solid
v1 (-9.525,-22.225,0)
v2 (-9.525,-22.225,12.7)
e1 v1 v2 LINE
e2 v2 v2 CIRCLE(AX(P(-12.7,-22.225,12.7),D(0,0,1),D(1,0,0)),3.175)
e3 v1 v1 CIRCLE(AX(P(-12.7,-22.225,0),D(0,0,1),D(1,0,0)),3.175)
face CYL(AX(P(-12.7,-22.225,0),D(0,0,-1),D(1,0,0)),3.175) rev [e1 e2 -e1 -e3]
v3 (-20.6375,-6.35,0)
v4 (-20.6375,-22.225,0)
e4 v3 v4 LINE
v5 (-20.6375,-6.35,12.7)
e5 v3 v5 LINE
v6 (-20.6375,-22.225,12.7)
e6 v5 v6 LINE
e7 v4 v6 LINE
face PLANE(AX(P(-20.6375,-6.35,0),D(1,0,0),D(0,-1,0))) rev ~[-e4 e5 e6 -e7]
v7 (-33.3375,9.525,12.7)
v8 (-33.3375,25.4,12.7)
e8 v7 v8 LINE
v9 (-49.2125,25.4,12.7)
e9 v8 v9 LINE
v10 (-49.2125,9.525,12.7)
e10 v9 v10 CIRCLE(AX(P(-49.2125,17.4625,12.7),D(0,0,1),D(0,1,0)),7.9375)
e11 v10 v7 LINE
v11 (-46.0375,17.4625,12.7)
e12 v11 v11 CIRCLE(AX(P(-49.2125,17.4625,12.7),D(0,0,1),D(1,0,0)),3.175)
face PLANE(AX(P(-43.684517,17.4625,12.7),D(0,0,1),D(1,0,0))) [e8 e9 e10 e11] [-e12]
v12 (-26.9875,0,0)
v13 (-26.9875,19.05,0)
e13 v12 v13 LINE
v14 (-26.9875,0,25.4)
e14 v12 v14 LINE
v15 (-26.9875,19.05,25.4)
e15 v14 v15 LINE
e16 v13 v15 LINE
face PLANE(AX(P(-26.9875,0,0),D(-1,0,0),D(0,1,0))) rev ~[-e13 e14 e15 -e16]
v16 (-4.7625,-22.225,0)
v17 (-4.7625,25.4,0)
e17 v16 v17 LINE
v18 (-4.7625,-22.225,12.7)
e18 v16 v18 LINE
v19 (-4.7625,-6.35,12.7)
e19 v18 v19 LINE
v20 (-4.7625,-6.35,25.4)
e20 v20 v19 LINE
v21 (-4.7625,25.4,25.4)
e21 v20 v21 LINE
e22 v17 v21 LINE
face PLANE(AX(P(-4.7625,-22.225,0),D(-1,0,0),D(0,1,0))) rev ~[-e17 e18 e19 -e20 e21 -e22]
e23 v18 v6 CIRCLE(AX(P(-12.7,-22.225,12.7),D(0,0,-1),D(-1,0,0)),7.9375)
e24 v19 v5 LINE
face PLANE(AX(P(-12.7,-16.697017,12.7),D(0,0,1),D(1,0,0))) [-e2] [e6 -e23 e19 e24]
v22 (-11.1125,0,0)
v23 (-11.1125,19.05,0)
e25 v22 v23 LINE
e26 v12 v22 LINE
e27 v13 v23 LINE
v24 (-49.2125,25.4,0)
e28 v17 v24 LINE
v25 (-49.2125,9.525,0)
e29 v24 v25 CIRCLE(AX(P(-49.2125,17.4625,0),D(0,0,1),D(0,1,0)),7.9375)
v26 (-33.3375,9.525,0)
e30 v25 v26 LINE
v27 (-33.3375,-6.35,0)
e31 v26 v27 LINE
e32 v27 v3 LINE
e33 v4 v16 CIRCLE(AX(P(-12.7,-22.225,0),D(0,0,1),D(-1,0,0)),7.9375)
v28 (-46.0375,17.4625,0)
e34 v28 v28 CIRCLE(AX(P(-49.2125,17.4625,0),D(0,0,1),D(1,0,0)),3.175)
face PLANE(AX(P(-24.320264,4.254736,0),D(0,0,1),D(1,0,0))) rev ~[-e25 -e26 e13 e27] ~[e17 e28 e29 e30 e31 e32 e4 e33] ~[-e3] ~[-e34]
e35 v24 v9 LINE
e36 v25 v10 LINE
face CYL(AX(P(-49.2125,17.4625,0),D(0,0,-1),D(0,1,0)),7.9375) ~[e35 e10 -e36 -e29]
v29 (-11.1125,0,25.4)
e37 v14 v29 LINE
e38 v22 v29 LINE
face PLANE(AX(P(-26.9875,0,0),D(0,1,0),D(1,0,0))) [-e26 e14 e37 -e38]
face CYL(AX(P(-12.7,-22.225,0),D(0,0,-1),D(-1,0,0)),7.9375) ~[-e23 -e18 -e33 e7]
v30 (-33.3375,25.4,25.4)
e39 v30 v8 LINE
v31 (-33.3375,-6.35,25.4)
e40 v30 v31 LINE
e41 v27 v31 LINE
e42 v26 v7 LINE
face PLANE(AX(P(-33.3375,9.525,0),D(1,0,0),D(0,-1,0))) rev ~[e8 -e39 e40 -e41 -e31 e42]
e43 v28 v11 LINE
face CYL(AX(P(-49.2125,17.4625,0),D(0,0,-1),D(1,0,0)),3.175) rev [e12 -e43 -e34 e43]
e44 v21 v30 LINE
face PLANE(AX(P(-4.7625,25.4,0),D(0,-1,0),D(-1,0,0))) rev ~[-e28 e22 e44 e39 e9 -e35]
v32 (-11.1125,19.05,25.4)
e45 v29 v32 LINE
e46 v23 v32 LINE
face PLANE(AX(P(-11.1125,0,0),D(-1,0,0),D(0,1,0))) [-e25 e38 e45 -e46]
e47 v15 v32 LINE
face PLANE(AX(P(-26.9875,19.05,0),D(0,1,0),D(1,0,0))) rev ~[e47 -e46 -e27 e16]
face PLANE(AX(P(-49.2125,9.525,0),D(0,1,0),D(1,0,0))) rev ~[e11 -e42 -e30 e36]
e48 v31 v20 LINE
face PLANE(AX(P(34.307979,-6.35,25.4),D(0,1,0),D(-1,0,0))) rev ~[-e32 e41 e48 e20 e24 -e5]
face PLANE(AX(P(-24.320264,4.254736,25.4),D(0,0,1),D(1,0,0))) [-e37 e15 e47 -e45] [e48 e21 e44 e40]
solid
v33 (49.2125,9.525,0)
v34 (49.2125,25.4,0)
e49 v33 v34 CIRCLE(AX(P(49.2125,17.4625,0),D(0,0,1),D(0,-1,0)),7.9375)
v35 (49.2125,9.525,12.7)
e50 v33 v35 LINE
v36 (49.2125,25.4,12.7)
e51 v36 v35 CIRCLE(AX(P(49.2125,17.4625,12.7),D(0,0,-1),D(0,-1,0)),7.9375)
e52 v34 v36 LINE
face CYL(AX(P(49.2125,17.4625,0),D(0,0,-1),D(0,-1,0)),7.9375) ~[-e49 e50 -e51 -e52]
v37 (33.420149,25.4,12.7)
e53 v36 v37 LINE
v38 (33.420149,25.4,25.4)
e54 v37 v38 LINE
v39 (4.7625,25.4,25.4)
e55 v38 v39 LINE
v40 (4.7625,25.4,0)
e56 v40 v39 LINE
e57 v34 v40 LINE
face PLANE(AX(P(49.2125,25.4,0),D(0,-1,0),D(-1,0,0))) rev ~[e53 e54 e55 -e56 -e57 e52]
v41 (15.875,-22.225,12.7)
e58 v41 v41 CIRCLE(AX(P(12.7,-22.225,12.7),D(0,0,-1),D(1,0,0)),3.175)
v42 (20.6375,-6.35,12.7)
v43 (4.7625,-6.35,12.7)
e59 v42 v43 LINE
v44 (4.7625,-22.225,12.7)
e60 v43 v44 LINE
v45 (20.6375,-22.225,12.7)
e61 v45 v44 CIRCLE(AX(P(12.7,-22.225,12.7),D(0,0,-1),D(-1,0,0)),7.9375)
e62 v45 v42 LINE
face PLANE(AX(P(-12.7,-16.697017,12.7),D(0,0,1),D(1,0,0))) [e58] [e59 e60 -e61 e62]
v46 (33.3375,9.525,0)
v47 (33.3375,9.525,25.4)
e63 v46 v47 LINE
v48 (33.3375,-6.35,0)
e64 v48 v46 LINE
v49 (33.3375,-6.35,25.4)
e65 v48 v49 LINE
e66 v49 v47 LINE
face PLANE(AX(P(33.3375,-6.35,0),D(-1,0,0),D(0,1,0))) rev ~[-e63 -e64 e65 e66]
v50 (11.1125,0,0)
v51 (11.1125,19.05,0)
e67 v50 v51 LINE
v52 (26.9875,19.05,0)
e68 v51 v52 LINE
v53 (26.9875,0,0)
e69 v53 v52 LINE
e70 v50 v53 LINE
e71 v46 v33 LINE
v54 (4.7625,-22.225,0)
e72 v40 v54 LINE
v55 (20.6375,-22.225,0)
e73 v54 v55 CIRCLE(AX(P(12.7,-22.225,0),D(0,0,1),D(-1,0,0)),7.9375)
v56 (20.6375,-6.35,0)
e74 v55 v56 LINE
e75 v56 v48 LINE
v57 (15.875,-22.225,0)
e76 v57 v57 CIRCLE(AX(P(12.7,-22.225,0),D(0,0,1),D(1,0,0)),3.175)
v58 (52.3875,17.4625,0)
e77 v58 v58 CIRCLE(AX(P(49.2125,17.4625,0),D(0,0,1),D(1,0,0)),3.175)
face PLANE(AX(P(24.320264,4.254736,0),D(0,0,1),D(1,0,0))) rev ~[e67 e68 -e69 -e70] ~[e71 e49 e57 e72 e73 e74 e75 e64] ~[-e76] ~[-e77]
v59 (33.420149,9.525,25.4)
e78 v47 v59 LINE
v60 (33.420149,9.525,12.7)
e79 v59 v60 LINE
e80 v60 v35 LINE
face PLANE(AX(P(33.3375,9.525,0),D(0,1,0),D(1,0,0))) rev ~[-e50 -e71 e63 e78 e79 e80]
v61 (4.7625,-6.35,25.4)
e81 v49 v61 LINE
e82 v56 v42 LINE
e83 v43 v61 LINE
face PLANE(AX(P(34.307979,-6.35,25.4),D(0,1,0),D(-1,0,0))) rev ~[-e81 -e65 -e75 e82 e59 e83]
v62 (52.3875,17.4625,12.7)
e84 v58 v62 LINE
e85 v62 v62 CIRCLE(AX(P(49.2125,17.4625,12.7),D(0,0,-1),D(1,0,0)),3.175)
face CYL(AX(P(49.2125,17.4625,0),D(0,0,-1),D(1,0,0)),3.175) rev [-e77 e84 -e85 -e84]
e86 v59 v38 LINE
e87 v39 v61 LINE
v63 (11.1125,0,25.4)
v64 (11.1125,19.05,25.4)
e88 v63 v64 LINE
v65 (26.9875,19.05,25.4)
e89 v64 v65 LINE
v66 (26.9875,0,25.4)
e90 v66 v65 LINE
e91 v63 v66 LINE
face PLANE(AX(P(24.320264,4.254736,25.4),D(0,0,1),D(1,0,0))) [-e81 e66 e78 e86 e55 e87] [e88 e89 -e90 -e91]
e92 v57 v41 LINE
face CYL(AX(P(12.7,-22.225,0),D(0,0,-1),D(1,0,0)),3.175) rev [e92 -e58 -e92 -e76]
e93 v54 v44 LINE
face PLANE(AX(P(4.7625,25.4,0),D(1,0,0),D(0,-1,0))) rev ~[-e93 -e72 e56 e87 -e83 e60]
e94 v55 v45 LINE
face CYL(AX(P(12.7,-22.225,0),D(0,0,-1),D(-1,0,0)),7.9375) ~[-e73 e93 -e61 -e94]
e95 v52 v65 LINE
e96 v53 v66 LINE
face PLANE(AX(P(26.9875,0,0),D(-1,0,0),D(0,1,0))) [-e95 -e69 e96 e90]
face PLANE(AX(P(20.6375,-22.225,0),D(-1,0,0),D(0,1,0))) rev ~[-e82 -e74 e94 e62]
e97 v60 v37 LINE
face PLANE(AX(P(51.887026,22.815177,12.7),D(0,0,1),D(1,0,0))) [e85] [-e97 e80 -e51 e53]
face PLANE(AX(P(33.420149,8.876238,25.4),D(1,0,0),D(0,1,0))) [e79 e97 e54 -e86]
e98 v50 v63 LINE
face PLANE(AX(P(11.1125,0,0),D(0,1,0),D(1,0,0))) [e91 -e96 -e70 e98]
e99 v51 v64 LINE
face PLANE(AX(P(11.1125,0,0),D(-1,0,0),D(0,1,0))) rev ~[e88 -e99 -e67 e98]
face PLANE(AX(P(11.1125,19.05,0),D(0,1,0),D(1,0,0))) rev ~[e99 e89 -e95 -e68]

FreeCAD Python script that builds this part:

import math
import FreeCAD as App
import Part
import Sketcher

V = App.Vector
Q = App.Units.Quantity

doc = App.newDocument("Part")
body = doc.addObject("PartDesign::Body", "Body")

# Sketch on XY plane
sketch1 = body.newObject("Sketcher::SketchObject", "Sketch")
sketch1.AttachmentSupport = (doc.getObject("XY_Plane"), [""])
sketch1.MapMode = "FlatFace"
sketch1.addGeometry([
    Part.LineSegment(V(-4.8, -22.2, 0), V(-4.8, 25.4, 0)),  # 0
    Part.LineSegment(V(-4.8, 25.4, 0), V(-49.2, 25.4, 0)),  # 1
    Part.ArcOfCircle(Part.Circle(V(-49.2, 17.5, 0), V(0, 0, 1), 7.9), math.radians(90), math.radians(270)),  # 2
    Part.LineSegment(V(-49.2, 9.5, 0), V(-33.3, 9.5, 0)),  # 3
    Part.LineSegment(V(-33.3, 9.5, 0), V(-33.3, -6.3, 0)),  # 4
    Part.LineSegment(V(-33.3, -6.3, 0), V(-20.6, -6.3, 0)),  # 5
    Part.LineSegment(V(-20.6, -6.3, 0), V(-20.6, -22.2, 0)),  # 6
    Part.ArcOfCircle(Part.Circle(V(-12.7, -22.2, 0), V(0, 0, 1), 7.9), math.radians(180), math.radians(360)),  # 7
    Part.Circle(V(-12.7, -22.2, 0), V(0, 0, 1), 3.2),  # 8
    Part.Circle(V(-49.2, 17.5, 0), V(0, 0, 1), 3.2),  # 9
    Part.LineSegment(V(-11.1, 0, 0), V(-27, 0, 0)),  # 10
    Part.LineSegment(V(-27, 0, 0), V(-27, 19.1, 0)),  # 11
    Part.LineSegment(V(-27, 19.1, 0), V(-11.1, 19.1, 0)),  # 12
    Part.LineSegment(V(-11.1, 19.1, 0), V(-11.1, 0, 0)),  # 13
], False)
sketch1.addConstraint([
    Sketcher.Constraint("Coincident", 0, 2, 1, 1),
    Sketcher.Constraint("Tangent", 1, 2, 2, 1),
    Sketcher.Constraint("Tangent", 2, 2, 3, 1),
    Sketcher.Constraint("Coincident", 3, 2, 4, 1),
    Sketcher.Constraint("Coincident", 4, 2, 5, 1),
    Sketcher.Constraint("Coincident", 5, 2, 6, 1),
    Sketcher.Constraint("Tangent", 6, 2, 7, 1),
    Sketcher.Constraint("Tangent", 7, 2, 0, 1),
    Sketcher.Constraint("Coincident", 10, 2, 11, 1),
    Sketcher.Constraint("Coincident", 11, 2, 12, 1),
    Sketcher.Constraint("Coincident", 12, 2, 13, 1),
    Sketcher.Constraint("Coincident", 13, 2, 10, 1),
    Sketcher.Constraint("Vertical", 0),
    Sketcher.Constraint("Horizontal", 1),
    Sketcher.Constraint("Horizontal", 3),
    Sketcher.Constraint("Vertical", 4),
    Sketcher.Constraint("Horizontal", 5),
    Sketcher.Constraint("Vertical", 6),
    Sketcher.Constraint("Horizontal", 10),
    Sketcher.Constraint("Vertical", 11),
    Sketcher.Constraint("Horizontal", 12),
    Sketcher.Constraint("Vertical", 13),
    Sketcher.Constraint("Coincident", 8, 3, 7, 3),
    Sketcher.Constraint("Coincident", 9, 3, 2, 3),
    Sketcher.Constraint("Equal", 2, 7),
    Sketcher.Constraint("Equal", 8, 9),
    Sketcher.Constraint("PointOnObject", 10, 2, -1),
    Sketcher.Constraint("Equal", 3, 10),
    Sketcher.Constraint("Equal", 12, 4),
    Sketcher.Constraint("Equal", 4, 6),
    Sketcher.Constraint("Diameter", 8, Q("0.25 in")),
    Sketcher.Constraint("DistanceX", 5, 1, 5, 2, Q("0.5 in")),
    Sketcher.Constraint("DistanceY", -1, 1, 0, 2, Q("1 in")),
    Sketcher.Constraint("Radius", 2, Q("0.3125 in")),
    Sketcher.Constraint("DistanceY", 5, 2, 12, 2, Q("1 in")),
    Sketcher.Constraint("DistanceX", 1, 2, 1, 1, Q("1.75 in")),
    Sketcher.Constraint("DistanceX", 7, 3, -1, 1, Q("0.5 in")),
    Sketcher.Constraint("DistanceX", 4, 2, 10, 2, Q("0.25 in")),
])
pad1 = body.newObject("PartDesign::Pad", "Pad")
pad1.Profile = sketch1
pad1.Length = Q("1 in")
body2 = doc.addObject("PartDesign::Body", "Body001")

# Sketch on XY plane
sketch2 = body2.newObject("Sketcher::SketchObject", "Sketch001")
sketch2.AttachmentSupport = (doc.getObject("XY_Plane001"), [""])
sketch2.MapMode = "FlatFace"
sketch2.addGeometry([
    Part.LineSegment(V(4.8, 25.4, 0), V(4.8, -22.2, 0)),  # 0
    Part.ArcOfCircle(Part.Circle(V(12.7, -22.2, 0), V(0, 0, 1), 7.9), math.radians(180), math.radians(360)),  # 1
    Part.LineSegment(V(20.6, -22.2, 0), V(20.6, -6.3, 0)),  # 2
    Part.LineSegment(V(20.6, -6.3, 0), V(33.3, -6.3, 0)),  # 3
    Part.LineSegment(V(33.3, -6.3, 0), V(33.3, 9.5, 0)),  # 4
    Part.LineSegment(V(33.3, 9.5, 0), V(49.2, 9.5, 0)),  # 5
    Part.ArcOfCircle(Part.Circle(V(49.2, 17.5, 0), V(0, 0, 1), 7.9), math.radians(-90), math.radians(90)),  # 6
    Part.LineSegment(V(49.2, 25.4, 0), V(4.8, 25.4, 0)),  # 7
    Part.Circle(V(12.7, -22.2, 0), V(0, 0, 1), 3.2),  # 8
    Part.LineSegment(V(27, 0, 0), V(11.1, 0, 0)),  # 9
    Part.LineSegment(V(11.1, 0, 0), V(11.1, 19.1, 0)),  # 10
    Part.LineSegment(V(11.1, 19.1, 0), V(27, 19.1, 0)),  # 11
    Part.LineSegment(V(27, 19.1, 0), V(27, 0, 0)),  # 12
    Part.Circle(V(49.2, 17.5, 0), V(0, 0, 1), 3.2),  # 13
], False)
sketch2.addConstraint([
    Sketcher.Constraint("Tangent", 0, 2, 1, 1),
    Sketcher.Constraint("Tangent", 1, 2, 2, 1),
    Sketcher.Constraint("Coincident", 2, 2, 3, 1),
    Sketcher.Constraint("Coincident", 3, 2, 4, 1),
    Sketcher.Constraint("Coincident", 4, 2, 5, 1),
    Sketcher.Constraint("Tangent", 5, 2, 6, 1),
    Sketcher.Constraint("Tangent", 6, 2, 7, 1),
    Sketcher.Constraint("Coincident", 7, 2, 0, 1),
    Sketcher.Constraint("Coincident", 9, 2, 10, 1),
    Sketcher.Constraint("Coincident", 10, 2, 11, 1),
    Sketcher.Constraint("Coincident", 11, 2, 12, 1),
    Sketcher.Constraint("Coincident", 12, 2, 9, 1),
    Sketcher.Constraint("Vertical", 0),
    Sketcher.Constraint("Vertical", 2),
    Sketcher.Constraint("Horizontal", 3),
    Sketcher.Constraint("Vertical", 4),
    Sketcher.Constraint("Horizontal", 5),
    Sketcher.Constraint("Horizontal", 7),
    Sketcher.Constraint("Horizontal", 9),
    Sketcher.Constraint("Vertical", 10),
    Sketcher.Constraint("Horizontal", 11),
    Sketcher.Constraint("Vertical", 12),
    Sketcher.Constraint("Coincident", 8, 3, 1, 3),
    Sketcher.Constraint("Coincident", 13, 3, 6, 3),
    Sketcher.Constraint("Equal", 1, 6),
    Sketcher.Constraint("Equal", 8, 13),
    Sketcher.Constraint("PointOnObject", 9, 2, -1),
    Sketcher.Constraint("Equal", 5, 9),
    Sketcher.Constraint("Equal", 11, 2),
    Sketcher.Constraint("Equal", 2, 4),
    Sketcher.Constraint("Diameter", 8, Q("0.25 in")),
    Sketcher.Constraint("DistanceX", 3, 1, 3, 2, Q("0.5 in")),
    Sketcher.Constraint("DistanceY", -1, 1, 6, 2, Q("1 in")),
    Sketcher.Constraint("Radius", 1, Q("0.3125 in")),
    Sketcher.Constraint("DistanceY", 2, 2, 10, 2, Q("1 in")),
    Sketcher.Constraint("DistanceX", 7, 2, 7, 1, Q("1.75 in")),
    Sketcher.Constraint("DistanceX", -1, 1, 1, 3, Q("0.5 in")),
    Sketcher.Constraint("DistanceX", 0, 2, 9, 2, Q("0.25 in")),
])
pad2 = body2.newObject("PartDesign::Pad", "Pad001")
pad2.Profile = sketch2
pad2.Length = Q("1 in")
body3 = doc.addObject("PartDesign::Body", "Body002")
body3.AllowCompound = True

# Sketch on XY plane
sketch3 = body3.newObject("Sketcher::SketchObject", "Sketch002")
sketch3.AttachmentSupport = (doc.getObject("XY_Plane002"), [""])
sketch3.MapMode = "FlatFace"
sketch3.AttachmentOffset = App.Placement(V(0, 0, 1 * 25.4), App.Rotation())
sketch3.addGeometry([
    Part.LineSegment(V(-49.2, 9.5, 0), V(-33.3, 9.5, 0)),  # 0
    Part.LineSegment(V(-33.3, 9.5, 0), V(-33.3, 25.4, 0)),  # 1
    Part.LineSegment(V(-33.3, 25.4, 0), V(-49.2, 25.4, 0)),  # 2
    Part.ArcOfCircle(Part.Circle(V(-49.2, 17.5, 0), V(0, 0, 1), 7.9), math.radians(90), math.radians(270)),  # 3
    Part.Circle(V(-49.2, 17.5, 0), V(0, 0, 1), 3.2),  # 4
    Part.LineSegment(V(-20.6, -6.3, 0), V(-20.6, -35.4, 0)),  # 5
    Part.LineSegment(V(-20.6, -35.4, 0), V(0, -35.4, 0)),  # 6
    Part.LineSegment(V(0, -35.4, 0), V(34.3, -35.7, 0)),  # 7
    Part.LineSegment(V(34.3, -35.7, 0), V(34.3, -6.3, 0)),  # 8
    Part.LineSegment(V(34.3, -6.3, 0), V(-20.6, -6.3, 0)),  # 9
    Part.Circle(V(-12.7, -22.2, 0), V(0, 0, 1), 3.2),  # 10
    Part.LineSegment(V(33.4, 36.8, 0), V(33.4, 8.9, 0)),  # 11
    Part.LineSegment(V(33.4, 8.9, 0), V(70.4, 8.9, 0)),  # 12
    Part.LineSegment(V(70.4, 8.9, 0), V(70.4, 36.8, 0)),  # 13
    Part.LineSegment(V(70.4, 36.8, 0), V(33.4, 36.8, 0)),  # 14
], False)
sketch3.addConstraint([
    Sketcher.Constraint("Coincident", 0, 2, 1, 1),
    Sketcher.Constraint("Coincident", 1, 2, 2, 1),
    Sketcher.Constraint("Tangent", 2, 2, 3, 1),
    Sketcher.Constraint("Tangent", 3, 2, 0, 1),
    Sketcher.Constraint("Coincident", 5, 2, 6, 1),
    Sketcher.Constraint("Coincident", 6, 2, 7, 1),
    Sketcher.Constraint("Coincident", 7, 2, 8, 1),
    Sketcher.Constraint("Coincident", 8, 2, 9, 1),
    Sketcher.Constraint("Coincident", 9, 2, 5, 1),
    Sketcher.Constraint("Coincident", 11, 2, 12, 1),
    Sketcher.Constraint("Coincident", 12, 2, 13, 1),
    Sketcher.Constraint("Coincident", 13, 2, 14, 1),
    Sketcher.Constraint("Coincident", 14, 2, 11, 1),
    Sketcher.Constraint("Horizontal", 0),
    Sketcher.Constraint("Vertical", 1),
    Sketcher.Constraint("Horizontal", 2),
    Sketcher.Constraint("Vertical", 5),
    Sketcher.Constraint("Horizontal", 6),
    Sketcher.Constraint("Vertical", 8),
    Sketcher.Constraint("Horizontal", 9),
    Sketcher.Constraint("Vertical", 11),
    Sketcher.Constraint("Horizontal", 12),
    Sketcher.Constraint("Vertical", 13),
    Sketcher.Constraint("Horizontal", 14),
    Sketcher.Constraint("Coincident", 4, 3, 3, 3),
    Sketcher.Constraint("Equal", 4, 10),
    Sketcher.Constraint("PointOnObject", 6, 2, -2),
    Sketcher.Constraint("Equal", 2, 1),
    Sketcher.Constraint("Diameter", 4, Q("0.25 in")),
    Sketcher.Constraint("DistanceY", -1, 1, 1, 2, Q("1 in")),
    Sketcher.Constraint("Radius", 3, Q("0.3125 in")),
    Sketcher.Constraint("DistanceX", 10, 3, -1, 1, Q("0.5 in")),
    Sketcher.Constraint("DistanceX", 0, 2, 5, 2, Q("0.5 in")),
    Sketcher.Constraint("DistanceX", 6, 1, 6, 2, Q("0.8125 in")),
    Sketcher.Constraint("DistanceY", 8, 2, -1, 1, Q("0.25 in")),
    Sketcher.Constraint("DistanceY", 10, 3, 0, 2, Q("1.25 in")),
    Sketcher.Constraint("DistanceX", 9, 2, 9, 1, 54.945479),
    Sketcher.Constraint("DistanceY", 11, 2, 11, 1, 27.877878),
    Sketcher.Constraint("DistanceX", 12, 1, 12, 2, 36.933754),
    Sketcher.Constraint("DistanceY", 5, 2, 5, 1, 29.084093),
    Sketcher.Constraint("DistanceY", 8, 1, 8, 2, 29.342856),
    Sketcher.Constraint("DistanceX", -1, 1, 11, 2, 33.420149),
    Sketcher.Constraint("DistanceY", -1, 1, 11, 2, 8.876238),
])
pad3 = body3.newObject("PartDesign::Pad", "Pad002")
pad3.Profile = sketch3
pad3.Length = Q("0.5 in")
pad3.Reversed = True
doc.recompute()

body4 = doc.addObject("PartDesign::Body", "Body003")
body4.BaseFeature = body3
boolean = body.newObject("PartDesign::Boolean", "Boolean")
boolean.Type = "Cut"
boolean.addObjects([body4])
doc.recompute()

boolean2 = body2.newObject("PartDesign::Boolean", "Boolean001")
boolean2.Type = "Cut"
boolean2.addObjects([body3])

doc.recompute()
